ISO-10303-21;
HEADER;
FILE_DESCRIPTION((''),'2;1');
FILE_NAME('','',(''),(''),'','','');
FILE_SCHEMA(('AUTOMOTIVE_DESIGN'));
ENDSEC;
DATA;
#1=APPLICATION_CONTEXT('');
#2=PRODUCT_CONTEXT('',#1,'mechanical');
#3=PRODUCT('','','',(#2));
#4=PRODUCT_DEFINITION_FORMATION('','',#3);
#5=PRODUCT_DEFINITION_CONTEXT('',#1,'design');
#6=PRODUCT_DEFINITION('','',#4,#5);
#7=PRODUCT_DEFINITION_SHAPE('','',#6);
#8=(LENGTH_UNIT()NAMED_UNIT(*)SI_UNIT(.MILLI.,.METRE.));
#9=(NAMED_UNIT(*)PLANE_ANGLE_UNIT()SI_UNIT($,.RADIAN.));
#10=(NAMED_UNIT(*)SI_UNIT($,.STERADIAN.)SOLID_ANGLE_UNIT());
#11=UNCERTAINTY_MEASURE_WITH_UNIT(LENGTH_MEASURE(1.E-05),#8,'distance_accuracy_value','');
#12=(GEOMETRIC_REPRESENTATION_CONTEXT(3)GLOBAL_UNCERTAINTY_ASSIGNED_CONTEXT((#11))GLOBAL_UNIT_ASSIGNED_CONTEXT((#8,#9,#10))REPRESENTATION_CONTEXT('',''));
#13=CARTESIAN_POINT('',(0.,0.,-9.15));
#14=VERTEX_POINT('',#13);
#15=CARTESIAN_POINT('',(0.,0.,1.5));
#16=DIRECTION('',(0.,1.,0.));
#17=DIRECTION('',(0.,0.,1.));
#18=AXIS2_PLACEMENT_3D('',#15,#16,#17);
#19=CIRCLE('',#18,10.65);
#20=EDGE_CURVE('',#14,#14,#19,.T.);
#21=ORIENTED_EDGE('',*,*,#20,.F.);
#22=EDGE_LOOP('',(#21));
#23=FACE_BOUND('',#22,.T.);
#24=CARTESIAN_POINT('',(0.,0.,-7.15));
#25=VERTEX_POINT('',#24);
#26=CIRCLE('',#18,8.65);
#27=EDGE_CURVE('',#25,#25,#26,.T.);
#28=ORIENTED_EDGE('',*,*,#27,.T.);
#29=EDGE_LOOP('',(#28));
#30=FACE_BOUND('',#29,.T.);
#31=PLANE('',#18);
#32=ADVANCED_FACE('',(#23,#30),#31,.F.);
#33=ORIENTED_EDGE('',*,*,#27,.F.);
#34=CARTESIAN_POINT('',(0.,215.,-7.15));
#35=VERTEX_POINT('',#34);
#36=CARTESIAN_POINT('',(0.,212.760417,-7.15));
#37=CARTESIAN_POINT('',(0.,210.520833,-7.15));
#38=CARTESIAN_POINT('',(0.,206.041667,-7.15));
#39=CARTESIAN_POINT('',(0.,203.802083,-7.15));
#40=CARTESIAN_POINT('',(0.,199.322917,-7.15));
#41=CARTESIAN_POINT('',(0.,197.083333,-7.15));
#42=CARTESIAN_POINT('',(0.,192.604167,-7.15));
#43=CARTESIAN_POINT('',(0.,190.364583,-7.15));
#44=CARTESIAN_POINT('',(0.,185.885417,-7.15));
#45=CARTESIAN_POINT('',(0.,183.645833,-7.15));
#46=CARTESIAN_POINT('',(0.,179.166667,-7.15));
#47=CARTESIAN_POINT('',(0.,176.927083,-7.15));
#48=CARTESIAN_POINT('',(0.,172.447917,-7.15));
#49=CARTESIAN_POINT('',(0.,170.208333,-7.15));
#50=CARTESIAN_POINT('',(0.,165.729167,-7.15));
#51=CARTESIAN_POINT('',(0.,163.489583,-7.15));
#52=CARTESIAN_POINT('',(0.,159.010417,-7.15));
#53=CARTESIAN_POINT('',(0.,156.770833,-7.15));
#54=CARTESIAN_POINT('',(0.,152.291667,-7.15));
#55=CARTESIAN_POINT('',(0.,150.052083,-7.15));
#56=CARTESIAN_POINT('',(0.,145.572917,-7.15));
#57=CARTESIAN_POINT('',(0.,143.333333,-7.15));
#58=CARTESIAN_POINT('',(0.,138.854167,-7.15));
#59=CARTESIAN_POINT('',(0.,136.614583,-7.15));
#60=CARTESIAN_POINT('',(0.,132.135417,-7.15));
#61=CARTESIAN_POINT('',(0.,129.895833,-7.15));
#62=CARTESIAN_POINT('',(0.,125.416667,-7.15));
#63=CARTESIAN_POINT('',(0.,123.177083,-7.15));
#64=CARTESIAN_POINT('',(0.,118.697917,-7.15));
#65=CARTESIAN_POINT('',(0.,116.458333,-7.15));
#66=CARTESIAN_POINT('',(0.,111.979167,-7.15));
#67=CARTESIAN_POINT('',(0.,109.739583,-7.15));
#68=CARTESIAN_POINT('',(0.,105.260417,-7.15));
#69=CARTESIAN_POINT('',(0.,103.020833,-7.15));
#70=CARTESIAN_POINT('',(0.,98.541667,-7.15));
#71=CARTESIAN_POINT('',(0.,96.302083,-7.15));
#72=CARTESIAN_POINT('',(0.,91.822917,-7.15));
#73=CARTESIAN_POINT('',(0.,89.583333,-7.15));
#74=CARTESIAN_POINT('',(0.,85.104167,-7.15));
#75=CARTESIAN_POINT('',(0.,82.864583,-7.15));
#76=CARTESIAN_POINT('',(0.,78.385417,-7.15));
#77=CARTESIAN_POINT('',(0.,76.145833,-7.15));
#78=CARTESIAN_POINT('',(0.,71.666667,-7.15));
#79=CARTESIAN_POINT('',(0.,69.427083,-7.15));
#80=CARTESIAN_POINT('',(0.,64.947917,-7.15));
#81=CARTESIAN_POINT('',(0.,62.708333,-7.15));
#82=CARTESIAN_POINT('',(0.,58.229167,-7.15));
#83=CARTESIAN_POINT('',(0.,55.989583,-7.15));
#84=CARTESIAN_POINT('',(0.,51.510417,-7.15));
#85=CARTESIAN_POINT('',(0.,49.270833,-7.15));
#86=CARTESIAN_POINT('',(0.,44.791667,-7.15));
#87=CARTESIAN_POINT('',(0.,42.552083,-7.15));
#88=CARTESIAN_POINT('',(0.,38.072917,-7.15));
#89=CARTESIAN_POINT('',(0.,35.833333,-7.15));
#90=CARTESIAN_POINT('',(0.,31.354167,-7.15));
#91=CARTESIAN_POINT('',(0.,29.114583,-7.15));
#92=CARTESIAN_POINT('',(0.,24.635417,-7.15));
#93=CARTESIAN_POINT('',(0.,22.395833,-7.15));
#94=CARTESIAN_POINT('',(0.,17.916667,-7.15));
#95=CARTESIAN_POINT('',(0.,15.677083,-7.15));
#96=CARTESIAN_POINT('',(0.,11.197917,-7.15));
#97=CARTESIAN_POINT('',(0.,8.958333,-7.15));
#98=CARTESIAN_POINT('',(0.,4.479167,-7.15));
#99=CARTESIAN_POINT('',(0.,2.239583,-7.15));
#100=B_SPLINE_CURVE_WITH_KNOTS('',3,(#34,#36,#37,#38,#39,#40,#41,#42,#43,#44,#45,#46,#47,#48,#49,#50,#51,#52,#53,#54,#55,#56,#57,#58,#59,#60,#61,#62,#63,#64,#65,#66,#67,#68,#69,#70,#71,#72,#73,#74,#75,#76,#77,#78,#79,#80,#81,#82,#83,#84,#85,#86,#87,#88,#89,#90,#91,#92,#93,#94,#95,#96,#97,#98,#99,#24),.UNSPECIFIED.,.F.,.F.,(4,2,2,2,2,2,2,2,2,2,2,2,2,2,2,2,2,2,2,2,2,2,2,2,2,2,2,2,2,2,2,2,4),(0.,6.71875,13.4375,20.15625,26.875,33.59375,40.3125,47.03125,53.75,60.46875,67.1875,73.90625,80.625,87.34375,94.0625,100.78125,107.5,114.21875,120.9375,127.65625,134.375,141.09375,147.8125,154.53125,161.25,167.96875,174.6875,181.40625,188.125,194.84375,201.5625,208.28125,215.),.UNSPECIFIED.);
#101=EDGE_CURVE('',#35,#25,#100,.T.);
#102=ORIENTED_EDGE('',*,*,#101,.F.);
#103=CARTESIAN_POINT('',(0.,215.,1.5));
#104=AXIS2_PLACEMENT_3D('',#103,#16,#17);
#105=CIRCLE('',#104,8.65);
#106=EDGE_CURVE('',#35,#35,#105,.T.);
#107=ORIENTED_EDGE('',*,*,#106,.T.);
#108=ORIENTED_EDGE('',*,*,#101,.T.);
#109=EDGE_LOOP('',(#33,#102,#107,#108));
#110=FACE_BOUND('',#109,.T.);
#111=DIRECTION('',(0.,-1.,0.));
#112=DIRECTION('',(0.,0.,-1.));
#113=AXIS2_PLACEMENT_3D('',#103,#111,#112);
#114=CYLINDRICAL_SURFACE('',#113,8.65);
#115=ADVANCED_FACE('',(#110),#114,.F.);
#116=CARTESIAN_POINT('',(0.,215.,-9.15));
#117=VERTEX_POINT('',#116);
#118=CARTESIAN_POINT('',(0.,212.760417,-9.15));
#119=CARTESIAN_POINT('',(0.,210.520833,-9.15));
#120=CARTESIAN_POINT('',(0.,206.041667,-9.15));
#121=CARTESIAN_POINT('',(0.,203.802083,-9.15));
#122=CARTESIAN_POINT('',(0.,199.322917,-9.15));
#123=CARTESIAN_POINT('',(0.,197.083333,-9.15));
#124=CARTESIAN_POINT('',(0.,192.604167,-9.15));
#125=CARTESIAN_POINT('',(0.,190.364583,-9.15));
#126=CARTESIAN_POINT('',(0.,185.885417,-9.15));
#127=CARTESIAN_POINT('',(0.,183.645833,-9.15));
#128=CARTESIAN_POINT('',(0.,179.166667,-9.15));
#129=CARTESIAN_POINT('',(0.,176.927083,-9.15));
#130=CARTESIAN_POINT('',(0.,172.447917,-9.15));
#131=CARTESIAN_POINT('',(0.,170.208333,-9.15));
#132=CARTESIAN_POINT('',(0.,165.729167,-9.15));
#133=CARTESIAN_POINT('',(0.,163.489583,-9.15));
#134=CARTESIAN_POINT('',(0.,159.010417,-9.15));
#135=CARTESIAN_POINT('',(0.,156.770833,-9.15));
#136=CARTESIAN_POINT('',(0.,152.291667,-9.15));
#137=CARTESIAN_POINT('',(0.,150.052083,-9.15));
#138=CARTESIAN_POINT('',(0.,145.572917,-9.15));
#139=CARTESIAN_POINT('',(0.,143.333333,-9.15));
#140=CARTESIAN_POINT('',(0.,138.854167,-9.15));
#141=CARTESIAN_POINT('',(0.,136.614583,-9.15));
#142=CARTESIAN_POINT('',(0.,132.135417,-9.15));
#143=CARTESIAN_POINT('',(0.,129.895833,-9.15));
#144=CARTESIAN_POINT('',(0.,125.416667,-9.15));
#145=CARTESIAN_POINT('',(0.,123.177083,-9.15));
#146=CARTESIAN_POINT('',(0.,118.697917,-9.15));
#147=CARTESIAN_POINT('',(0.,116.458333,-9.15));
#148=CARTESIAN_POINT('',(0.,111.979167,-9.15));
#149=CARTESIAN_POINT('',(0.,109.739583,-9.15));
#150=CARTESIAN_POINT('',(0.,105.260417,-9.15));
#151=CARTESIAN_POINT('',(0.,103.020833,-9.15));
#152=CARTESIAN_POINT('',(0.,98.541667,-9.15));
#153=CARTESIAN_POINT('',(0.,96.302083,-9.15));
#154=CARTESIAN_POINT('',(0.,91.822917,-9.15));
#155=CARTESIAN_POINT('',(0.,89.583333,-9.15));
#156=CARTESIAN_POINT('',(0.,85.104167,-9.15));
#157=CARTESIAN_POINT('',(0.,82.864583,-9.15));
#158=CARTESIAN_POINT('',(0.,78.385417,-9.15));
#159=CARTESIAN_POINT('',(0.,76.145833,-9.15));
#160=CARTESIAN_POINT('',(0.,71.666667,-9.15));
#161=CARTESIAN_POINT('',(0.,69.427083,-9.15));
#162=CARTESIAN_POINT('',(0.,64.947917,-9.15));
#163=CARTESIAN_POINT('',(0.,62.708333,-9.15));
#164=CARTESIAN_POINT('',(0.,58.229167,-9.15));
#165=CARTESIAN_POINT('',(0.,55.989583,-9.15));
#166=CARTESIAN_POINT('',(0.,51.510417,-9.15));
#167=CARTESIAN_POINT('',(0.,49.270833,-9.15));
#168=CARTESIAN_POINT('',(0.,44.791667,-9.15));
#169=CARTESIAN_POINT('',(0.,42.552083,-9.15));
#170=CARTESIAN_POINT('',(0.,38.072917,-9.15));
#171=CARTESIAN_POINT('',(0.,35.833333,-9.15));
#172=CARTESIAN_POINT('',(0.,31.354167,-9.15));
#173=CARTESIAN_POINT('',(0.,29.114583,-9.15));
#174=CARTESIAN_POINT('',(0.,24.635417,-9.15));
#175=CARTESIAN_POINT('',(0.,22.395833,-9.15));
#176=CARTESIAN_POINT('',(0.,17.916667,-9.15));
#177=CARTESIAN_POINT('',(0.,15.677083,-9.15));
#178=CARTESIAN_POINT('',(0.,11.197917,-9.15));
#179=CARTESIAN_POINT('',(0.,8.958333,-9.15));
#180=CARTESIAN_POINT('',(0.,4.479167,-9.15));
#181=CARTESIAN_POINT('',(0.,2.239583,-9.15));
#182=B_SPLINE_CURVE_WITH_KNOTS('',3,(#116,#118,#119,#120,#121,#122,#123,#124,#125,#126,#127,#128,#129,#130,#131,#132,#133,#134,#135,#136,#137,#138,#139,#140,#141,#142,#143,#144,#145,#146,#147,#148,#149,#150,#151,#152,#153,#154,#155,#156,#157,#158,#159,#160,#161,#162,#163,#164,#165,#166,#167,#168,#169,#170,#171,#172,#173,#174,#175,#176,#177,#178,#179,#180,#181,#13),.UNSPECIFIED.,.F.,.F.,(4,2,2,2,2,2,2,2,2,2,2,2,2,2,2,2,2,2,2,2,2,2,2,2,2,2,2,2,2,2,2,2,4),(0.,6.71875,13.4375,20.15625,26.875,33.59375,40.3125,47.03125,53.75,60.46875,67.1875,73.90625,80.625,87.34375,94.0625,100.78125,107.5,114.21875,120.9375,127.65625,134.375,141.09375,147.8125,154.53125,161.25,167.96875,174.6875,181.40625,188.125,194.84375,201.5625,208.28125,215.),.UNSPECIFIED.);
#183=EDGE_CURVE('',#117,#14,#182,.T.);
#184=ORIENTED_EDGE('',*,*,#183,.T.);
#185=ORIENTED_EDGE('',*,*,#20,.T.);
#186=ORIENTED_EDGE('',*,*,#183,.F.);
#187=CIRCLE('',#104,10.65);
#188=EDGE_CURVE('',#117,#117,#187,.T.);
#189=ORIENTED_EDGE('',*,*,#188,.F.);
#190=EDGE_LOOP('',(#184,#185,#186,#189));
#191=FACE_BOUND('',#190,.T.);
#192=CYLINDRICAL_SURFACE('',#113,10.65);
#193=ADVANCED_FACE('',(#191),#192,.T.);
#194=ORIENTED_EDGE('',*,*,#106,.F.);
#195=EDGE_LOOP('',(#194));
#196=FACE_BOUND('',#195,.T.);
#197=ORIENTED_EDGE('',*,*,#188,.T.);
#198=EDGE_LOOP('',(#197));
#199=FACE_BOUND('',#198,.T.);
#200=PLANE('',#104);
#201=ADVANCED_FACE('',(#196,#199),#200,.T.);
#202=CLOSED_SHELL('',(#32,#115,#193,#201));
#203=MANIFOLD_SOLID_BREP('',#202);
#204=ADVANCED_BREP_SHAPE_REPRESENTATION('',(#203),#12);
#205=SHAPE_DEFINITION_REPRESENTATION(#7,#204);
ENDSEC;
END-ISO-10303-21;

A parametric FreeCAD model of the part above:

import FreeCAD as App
import Part
import Sketcher

V = App.Vector
Q = App.Units.Quantity

doc = App.newDocument("Part")
body = doc.addObject("PartDesign::Body", "Body")

# Sketch on XZ plane
sketch1 = body.newObject("Sketcher::SketchObject", "Sketch")
sketch1.AttachmentSupport = (doc.getObject("XZ_Plane"), [""])
sketch1.MapMode = "FlatFace"
sketch1.addGeometry(Part.Circle(V(0, 2, 0), V(0, 0, 1), 11), False)
sketch1.addGeometry(Part.Circle(V(0, 2, 0), V(0, 0, 1), 9), False)
sketch1.addConstraint(Sketcher.Constraint("Coincident", 1, 3, 0, 3))
sketch1.addConstraint(Sketcher.Constraint("PointOnObject", 0, 3, -2))
sketch1.addConstraint(Sketcher.Constraint("Diameter", 0, Q("21.3 mm")))
sketch1.addConstraint(Sketcher.Constraint("Diameter", 1, Q("17.3 mm")))
sketch1.addConstraint(Sketcher.Constraint("DistanceY", -1, 1, 0, 3, Q("1.5 mm")))
pad1 = body.newObject("PartDesign::Pad", "Pad")
pad1.Profile = sketch1
pad1.Length = 215
pad1.Reversed = True

doc.recompute()
